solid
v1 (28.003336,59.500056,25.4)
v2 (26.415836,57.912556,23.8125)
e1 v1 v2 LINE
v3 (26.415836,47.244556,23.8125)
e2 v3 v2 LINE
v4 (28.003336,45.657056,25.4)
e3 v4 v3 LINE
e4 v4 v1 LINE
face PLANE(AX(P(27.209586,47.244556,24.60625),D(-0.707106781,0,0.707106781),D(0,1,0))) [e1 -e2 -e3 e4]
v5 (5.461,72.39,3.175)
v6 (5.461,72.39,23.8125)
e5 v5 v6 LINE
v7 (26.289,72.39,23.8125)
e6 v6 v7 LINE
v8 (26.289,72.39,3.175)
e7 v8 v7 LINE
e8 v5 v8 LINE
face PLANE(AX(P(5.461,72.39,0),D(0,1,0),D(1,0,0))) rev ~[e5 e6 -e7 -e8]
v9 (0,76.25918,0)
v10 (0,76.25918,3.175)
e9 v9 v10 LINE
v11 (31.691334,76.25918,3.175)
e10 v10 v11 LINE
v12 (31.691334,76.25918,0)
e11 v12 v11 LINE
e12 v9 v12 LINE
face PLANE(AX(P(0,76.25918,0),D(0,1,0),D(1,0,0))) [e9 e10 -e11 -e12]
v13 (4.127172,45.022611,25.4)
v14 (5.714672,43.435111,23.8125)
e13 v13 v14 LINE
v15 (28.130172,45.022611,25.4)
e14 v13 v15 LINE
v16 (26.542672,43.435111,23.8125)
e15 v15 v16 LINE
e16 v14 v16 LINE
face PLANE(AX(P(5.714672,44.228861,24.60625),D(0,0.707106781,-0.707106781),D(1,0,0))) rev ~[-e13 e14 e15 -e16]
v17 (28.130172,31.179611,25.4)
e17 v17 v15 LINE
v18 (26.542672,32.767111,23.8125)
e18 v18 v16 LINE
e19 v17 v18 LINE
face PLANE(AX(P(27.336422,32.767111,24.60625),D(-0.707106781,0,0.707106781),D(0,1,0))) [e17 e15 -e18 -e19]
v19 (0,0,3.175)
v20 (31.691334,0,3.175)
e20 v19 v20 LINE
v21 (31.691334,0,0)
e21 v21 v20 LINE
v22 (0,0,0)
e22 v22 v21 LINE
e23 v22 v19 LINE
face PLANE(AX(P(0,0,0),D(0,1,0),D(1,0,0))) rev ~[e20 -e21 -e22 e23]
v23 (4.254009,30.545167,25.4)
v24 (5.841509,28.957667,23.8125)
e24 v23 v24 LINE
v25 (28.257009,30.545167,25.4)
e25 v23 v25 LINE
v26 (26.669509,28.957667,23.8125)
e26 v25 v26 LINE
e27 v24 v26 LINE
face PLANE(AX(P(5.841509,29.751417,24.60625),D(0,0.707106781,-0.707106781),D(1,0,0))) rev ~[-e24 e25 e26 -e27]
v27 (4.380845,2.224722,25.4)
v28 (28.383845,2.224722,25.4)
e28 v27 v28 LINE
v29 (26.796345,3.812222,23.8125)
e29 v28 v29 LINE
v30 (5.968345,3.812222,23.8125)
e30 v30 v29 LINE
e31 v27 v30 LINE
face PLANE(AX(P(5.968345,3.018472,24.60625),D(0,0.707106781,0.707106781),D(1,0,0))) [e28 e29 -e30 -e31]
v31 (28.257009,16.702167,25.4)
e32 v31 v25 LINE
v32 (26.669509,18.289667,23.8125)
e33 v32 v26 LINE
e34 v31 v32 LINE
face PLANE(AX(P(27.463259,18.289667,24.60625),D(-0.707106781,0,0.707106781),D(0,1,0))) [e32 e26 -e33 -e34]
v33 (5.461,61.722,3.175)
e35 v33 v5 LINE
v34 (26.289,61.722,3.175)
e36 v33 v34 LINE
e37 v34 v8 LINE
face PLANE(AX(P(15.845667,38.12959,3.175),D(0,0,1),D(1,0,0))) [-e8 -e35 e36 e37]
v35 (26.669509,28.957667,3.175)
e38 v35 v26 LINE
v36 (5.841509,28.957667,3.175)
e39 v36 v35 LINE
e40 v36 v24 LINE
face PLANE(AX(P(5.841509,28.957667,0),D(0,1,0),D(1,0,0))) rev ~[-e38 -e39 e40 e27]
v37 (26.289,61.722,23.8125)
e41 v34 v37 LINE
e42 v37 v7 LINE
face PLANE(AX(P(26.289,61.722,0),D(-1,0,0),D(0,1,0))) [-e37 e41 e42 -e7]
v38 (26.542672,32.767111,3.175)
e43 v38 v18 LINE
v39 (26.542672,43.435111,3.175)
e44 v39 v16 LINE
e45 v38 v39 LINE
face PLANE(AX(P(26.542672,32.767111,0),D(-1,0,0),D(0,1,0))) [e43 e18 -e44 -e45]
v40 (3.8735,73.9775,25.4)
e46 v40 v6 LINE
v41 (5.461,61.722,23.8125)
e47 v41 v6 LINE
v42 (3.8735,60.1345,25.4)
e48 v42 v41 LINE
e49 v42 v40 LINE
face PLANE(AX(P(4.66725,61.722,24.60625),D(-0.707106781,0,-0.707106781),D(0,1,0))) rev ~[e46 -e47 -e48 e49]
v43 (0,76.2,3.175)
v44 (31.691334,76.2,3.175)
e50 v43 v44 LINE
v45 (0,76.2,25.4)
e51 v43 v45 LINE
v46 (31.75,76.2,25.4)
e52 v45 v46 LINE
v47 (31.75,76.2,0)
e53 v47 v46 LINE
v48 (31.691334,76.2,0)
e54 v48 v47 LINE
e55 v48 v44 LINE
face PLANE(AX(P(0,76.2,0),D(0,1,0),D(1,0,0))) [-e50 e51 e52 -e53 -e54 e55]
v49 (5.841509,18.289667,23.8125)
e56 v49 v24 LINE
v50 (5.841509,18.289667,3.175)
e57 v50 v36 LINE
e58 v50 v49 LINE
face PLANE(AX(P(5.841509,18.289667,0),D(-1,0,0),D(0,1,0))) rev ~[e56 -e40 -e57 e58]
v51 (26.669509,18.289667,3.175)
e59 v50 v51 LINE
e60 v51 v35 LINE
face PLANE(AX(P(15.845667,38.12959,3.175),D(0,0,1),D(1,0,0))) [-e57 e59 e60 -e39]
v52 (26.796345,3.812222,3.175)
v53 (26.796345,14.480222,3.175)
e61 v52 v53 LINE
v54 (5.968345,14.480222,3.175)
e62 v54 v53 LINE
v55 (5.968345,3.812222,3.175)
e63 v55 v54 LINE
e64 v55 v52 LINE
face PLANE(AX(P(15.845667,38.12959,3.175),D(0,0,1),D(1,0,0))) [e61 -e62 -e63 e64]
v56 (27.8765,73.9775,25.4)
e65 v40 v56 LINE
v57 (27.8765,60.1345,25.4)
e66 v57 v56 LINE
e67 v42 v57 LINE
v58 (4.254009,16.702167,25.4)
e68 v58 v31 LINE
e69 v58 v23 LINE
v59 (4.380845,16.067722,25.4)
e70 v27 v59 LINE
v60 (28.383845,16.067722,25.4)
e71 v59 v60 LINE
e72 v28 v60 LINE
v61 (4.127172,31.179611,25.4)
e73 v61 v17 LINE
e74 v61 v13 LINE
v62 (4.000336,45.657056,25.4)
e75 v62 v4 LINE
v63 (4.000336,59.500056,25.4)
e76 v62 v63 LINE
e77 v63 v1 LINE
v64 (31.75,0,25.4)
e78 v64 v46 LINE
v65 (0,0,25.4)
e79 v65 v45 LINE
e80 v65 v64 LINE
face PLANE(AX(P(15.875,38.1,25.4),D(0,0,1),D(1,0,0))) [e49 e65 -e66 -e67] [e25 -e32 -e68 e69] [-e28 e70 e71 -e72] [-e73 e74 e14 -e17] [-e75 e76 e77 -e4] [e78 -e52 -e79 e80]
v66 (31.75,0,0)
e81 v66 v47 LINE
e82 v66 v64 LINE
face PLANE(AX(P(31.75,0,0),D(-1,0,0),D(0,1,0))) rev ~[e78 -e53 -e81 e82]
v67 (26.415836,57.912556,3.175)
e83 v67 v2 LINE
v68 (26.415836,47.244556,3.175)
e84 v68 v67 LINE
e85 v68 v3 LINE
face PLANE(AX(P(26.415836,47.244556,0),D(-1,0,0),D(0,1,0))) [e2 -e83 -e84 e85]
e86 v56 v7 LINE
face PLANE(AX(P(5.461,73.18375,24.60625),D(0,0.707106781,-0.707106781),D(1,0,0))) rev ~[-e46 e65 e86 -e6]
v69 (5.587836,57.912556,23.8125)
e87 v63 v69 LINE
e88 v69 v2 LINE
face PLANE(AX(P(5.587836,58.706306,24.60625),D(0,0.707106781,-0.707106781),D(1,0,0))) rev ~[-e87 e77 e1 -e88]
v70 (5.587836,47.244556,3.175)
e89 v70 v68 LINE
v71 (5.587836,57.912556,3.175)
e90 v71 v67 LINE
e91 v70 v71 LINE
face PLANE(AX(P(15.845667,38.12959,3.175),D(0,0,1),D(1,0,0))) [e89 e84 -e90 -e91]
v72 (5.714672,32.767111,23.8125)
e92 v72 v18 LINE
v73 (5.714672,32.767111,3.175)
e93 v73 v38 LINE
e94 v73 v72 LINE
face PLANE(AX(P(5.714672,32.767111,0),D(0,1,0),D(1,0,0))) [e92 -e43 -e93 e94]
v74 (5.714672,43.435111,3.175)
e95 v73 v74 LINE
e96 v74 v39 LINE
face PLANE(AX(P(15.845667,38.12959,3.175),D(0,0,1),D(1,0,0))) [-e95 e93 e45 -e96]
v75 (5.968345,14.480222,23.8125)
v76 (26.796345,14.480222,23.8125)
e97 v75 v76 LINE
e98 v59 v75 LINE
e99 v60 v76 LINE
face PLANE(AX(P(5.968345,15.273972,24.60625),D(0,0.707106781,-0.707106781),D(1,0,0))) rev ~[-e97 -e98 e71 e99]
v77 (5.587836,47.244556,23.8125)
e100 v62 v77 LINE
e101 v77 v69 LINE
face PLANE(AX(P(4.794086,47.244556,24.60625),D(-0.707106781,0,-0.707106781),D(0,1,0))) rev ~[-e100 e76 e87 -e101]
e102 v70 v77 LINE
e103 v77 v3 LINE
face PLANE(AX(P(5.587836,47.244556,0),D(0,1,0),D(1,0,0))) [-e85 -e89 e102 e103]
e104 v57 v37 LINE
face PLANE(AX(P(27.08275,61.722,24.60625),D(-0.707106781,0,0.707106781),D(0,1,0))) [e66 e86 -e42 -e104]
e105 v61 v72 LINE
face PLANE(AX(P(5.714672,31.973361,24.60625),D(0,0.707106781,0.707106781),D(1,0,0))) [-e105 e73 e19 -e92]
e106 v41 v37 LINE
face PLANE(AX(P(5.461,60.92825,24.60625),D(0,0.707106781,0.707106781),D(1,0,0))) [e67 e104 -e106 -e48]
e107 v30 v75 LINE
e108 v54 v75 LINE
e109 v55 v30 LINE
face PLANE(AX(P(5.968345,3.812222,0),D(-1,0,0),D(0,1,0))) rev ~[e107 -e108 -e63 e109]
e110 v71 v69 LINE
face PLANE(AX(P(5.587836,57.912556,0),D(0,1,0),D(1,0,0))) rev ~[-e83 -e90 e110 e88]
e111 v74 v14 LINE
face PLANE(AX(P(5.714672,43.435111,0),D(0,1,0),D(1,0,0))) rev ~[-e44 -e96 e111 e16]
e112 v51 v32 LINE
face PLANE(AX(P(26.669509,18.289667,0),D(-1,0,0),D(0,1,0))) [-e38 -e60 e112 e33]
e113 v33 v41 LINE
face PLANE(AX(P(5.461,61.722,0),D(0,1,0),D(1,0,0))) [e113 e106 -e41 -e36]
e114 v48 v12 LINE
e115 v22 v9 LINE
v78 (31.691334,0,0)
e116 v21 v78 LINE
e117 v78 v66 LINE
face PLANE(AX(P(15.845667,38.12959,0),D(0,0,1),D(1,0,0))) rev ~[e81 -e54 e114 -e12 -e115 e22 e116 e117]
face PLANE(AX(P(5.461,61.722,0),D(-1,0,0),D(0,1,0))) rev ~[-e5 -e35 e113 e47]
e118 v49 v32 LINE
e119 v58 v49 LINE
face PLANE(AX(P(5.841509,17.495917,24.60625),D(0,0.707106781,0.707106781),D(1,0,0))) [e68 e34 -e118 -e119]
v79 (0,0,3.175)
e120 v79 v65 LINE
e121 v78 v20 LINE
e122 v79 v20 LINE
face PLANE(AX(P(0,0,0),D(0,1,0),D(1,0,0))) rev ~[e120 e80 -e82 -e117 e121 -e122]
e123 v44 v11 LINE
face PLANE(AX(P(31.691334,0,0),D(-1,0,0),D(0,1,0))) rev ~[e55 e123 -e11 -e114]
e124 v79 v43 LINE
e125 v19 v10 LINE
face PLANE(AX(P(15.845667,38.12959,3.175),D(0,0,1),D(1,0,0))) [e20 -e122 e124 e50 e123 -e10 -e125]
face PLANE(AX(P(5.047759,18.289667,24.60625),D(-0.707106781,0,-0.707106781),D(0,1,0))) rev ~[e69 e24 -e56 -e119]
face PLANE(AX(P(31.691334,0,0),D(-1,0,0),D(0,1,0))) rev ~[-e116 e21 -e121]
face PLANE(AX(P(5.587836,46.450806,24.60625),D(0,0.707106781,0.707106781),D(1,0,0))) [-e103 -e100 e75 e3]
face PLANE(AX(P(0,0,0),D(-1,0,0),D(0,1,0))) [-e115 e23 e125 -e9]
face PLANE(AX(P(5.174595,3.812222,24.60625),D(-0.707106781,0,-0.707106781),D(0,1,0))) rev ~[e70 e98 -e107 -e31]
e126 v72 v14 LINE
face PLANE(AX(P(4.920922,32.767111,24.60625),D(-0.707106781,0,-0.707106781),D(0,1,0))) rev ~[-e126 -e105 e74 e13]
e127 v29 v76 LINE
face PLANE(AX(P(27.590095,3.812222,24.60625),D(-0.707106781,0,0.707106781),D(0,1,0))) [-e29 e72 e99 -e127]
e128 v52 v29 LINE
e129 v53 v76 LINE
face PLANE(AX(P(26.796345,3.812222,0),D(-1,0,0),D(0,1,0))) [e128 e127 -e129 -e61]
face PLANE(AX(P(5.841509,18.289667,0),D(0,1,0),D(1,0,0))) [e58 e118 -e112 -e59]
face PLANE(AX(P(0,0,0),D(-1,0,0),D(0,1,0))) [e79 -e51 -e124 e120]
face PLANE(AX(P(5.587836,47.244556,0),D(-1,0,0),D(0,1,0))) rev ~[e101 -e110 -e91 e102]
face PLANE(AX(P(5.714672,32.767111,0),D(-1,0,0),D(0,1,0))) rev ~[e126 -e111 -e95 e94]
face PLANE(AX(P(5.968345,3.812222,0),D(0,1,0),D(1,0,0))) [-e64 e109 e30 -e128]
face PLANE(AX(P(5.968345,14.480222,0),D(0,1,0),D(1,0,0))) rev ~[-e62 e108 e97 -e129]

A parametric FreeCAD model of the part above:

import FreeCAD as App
import Part
import Sketcher

V = App.Vector
Q = App.Units.Quantity


def edges_at(feature, points):
    """Names of the edges that pass closest to the given points."""
    edges = feature.Shape.Edges
    near = lambda p: min(range(len(edges)), key=lambda i: edges[i].distToShape(Part.Vertex(*p))[0])
    return sorted({f"Edge{near(p) + 1}" for p in points})

doc = App.newDocument("Part")
params = doc.addObject("Spreadsheet::Sheet", "Params")
for row, (alias, value) in enumerate([
    ("sketch1_height", "3 in"),
    ("sketch1_width", "1.25 in"),
    ("sketch1_width2", "0.82 in"),
    ("sketch1_height2", "0.42 in"),
    ("pad1_length", "1 in"),
    ("pad2_length", "0.125 in"),
    ("chamfer_size", "0.0625 in"),
], start=1):
    params.set(f"A{row}", alias)
    params.set(f"B{row}", "=" + value)
    params.setAlias(f"B{row}", alias)

body = doc.addObject("PartDesign::Body", "Body")

# Sketch on XY plane
sketch1 = body.newObject("Sketcher::SketchObject", "Sketch")
sketch1.AttachmentSupport = (doc.getObject("XY_Plane"), [""])
sketch1.MapMode = "FlatFace"
sketch1.addGeometry(Part.LineSegment(V(0, 76, 0), V(0, 0, 0)), False)
sketch1.addGeometry(Part.LineSegment(V(0, 0, 0), V(32, 0, 0)), False)
sketch1.addGeometry(Part.LineSegment(V(32, 0, 0), V(32, 76, 0)), False)
sketch1.addGeometry(Part.LineSegment(V(32, 76, 0), V(0, 76, 0)), False)
sketch1.addGeometry(Part.LineSegment(V(27, 4, 0), V(6, 4, 0)), False)
sketch1.addGeometry(Part.LineSegment(V(6, 4, 0), V(6, 14, 0)), False)
sketch1.addGeometry(Part.LineSegment(V(6, 14, 0), V(27, 14, 0)), False)
sketch1.addGeometry(Part.LineSegment(V(27, 14, 0), V(27, 4, 0)), False)
sketch1.addGeometry(Part.LineSegment(V(27, 18, 0), V(6, 18, 0)), False)
sketch1.addGeometry(Part.LineSegment(V(6, 18, 0), V(6, 29, 0)), False)
sketch1.addGeometry(Part.LineSegment(V(6, 29, 0), V(27, 29, 0)), False)
sketch1.addGeometry(Part.LineSegment(V(27, 29, 0), V(27, 18, 0)), False)
sketch1.addGeometry(Part.LineSegment(V(27, 33, 0), V(6, 33, 0)), False)
sketch1.addGeometry(Part.LineSegment(V(6, 33, 0), V(6, 43, 0)), False)
sketch1.addGeometry(Part.LineSegment(V(6, 43, 0), V(27, 43, 0)), False)
sketch1.addGeometry(Part.LineSegment(V(27, 43, 0), V(27, 33, 0)), False)
sketch1.addGeometry(Part.LineSegment(V(26, 47, 0), V(6, 47, 0)), False)
sketch1.addGeometry(Part.LineSegment(V(6, 47, 0), V(6, 58, 0)), False)
sketch1.addGeometry(Part.LineSegment(V(6, 58, 0), V(26, 58, 0)), False)
sketch1.addGeometry(Part.LineSegment(V(26, 58, 0), V(26, 47, 0)), False)
sketch1.addGeometry(Part.LineSegment(V(26, 62, 0), V(5, 62, 0)), False)
sketch1.addGeometry(Part.LineSegment(V(5, 62, 0), V(5, 72, 0)), False)
sketch1.addGeometry(Part.LineSegment(V(5, 72, 0), V(26, 72, 0)), False)
sketch1.addGeometry(Part.LineSegment(V(26, 72, 0), V(26, 62, 0)), False)
sketch1.addConstraint(Sketcher.Constraint("Coincident", 0, 2, 1, 1))
sketch1.addConstraint(Sketcher.Constraint("Coincident", 1, 2, 2, 1))
sketch1.addConstraint(Sketcher.Constraint("Coincident", 2, 2, 3, 1))
sketch1.addConstraint(Sketcher.Constraint("Coincident", 3, 2, 0, 1))
sketch1.addConstraint(Sketcher.Constraint("Coincident", 4, 2, 5, 1))
sketch1.addConstraint(Sketcher.Constraint("Coincident", 5, 2, 6, 1))
sketch1.addConstraint(Sketcher.Constraint("Coincident", 6, 2, 7, 1))
sketch1.addConstraint(Sketcher.Constraint("Coincident", 7, 2, 4, 1))
sketch1.addConstraint(Sketcher.Constraint("Coincident", 8, 2, 9, 1))
sketch1.addConstraint(Sketcher.Constraint("Coincident", 9, 2, 10, 1))
sketch1.addConstraint(Sketcher.Constraint("Coincident", 10, 2, 11, 1))
sketch1.addConstraint(Sketcher.Constraint("Coincident", 11, 2, 8, 1))
sketch1.addConstraint(Sketcher.Constraint("Coincident", 12, 2, 13, 1))
sketch1.addConstraint(Sketcher.Constraint("Coincident", 13, 2, 14, 1))
sketch1.addConstraint(Sketcher.Constraint("Coincident", 14, 2, 15, 1))
sketch1.addConstraint(Sketcher.Constraint("Coincident", 15, 2, 12, 1))
sketch1.addConstraint(Sketcher.Constraint("Coincident", 16, 2, 17, 1))
sketch1.addConstraint(Sketcher.Constraint("Coincident", 17, 2, 18, 1))
sketch1.addConstraint(Sketcher.Constraint("Coincident", 18, 2, 19, 1))
sketch1.addConstraint(Sketcher.Constraint("Coincident", 19, 2, 16, 1))
sketch1.addConstraint(Sketcher.Constraint("Coincident", 20, 2, 21, 1))
sketch1.addConstraint(Sketcher.Constraint("Coincident", 21, 2, 22, 1))
sketch1.addConstraint(Sketcher.Constraint("Coincident", 22, 2, 23, 1))
sketch1.addConstraint(Sketcher.Constraint("Coincident", 23, 2, 20, 1))
sketch1.addConstraint(Sketcher.Constraint("Vertical", 0))
sketch1.addConstraint(Sketcher.Constraint("Horizontal", 1))
sketch1.addConstraint(Sketcher.Constraint("Vertical", 2))
sketch1.addConstraint(Sketcher.Constraint("Horizontal", 3))
sketch1.addConstraint(Sketcher.Constraint("Horizontal", 4))
sketch1.addConstraint(Sketcher.Constraint("Vertical", 5))
sketch1.addConstraint(Sketcher.Constraint("Horizontal", 6))
sketch1.addConstraint(Sketcher.Constraint("Vertical", 7))
sketch1.addConstraint(Sketcher.Constraint("Horizontal", 8))
sketch1.addConstraint(Sketcher.Constraint("Vertical", 9))
sketch1.addConstraint(Sketcher.Constraint("Horizontal", 10))
sketch1.addConstraint(Sketcher.Constraint("Vertical", 11))
sketch1.addConstraint(Sketcher.Constraint("Horizontal", 12))
sketch1.addConstraint(Sketcher.Constraint("Vertical", 13))
sketch1.addConstraint(Sketcher.Constraint("Horizontal", 14))
sketch1.addConstraint(Sketcher.Constraint("Vertical", 15))
sketch1.addConstraint(Sketcher.Constraint("Horizontal", 16))
sketch1.addConstraint(Sketcher.Constraint("Vertical", 17))
sketch1.addConstraint(Sketcher.Constraint("Horizontal", 18))
sketch1.addConstraint(Sketcher.Constraint("Vertical", 19))
sketch1.addConstraint(Sketcher.Constraint("Horizontal", 20))
sketch1.addConstraint(Sketcher.Constraint("Vertical", 21))
sketch1.addConstraint(Sketcher.Constraint("Horizontal", 22))
sketch1.addConstraint(Sketcher.Constraint("Vertical", 23))
sketch1.addConstraint(Sketcher.Constraint("Coincident", 0, 2, -1, 1))
sketch1.addConstraint(Sketcher.Constraint("Equal", 6, 8))
sketch1.addConstraint(Sketcher.Constraint("Equal", 10, 12))
sketch1.addConstraint(Sketcher.Constraint("Equal", 14, 16))
sketch1.addConstraint(Sketcher.Constraint("Equal", 18, 20))
sketch1.addConstraint(Sketcher.Constraint("Equal", 7, 9))
sketch1.addConstraint(Sketcher.Constraint("Equal", 11, 13))
sketch1.addConstraint(Sketcher.Constraint("Equal", 15, 17))
sketch1.addConstraint(Sketcher.Constraint("Equal", 19, 21))
sketch1.addConstraint(Sketcher.Constraint("DistanceY", 0, 2, 0, 1, Q("3 in")))
sketch1.addConstraint(Sketcher.Constraint("DistanceX", 1, 1, 1, 2, Q("1.25 in")))
sketch1.addConstraint(Sketcher.Constraint("DistanceX", 4, 2, 4, 1, Q("0.82 in")))
sketch1.addConstraint(Sketcher.Constraint("DistanceY", 5, 1, 5, 2, Q("0.42 in")))
sketch1.addConstraint(Sketcher.Constraint("DistanceY", -1, 1, 20, 2, Q("2.43 in")))
sketch1.addConstraint(Sketcher.Constraint("DistanceX", -1, 1, 20, 2, Q("0.215 in")))
sketch1.addConstraint(Sketcher.Constraint("DistanceX", -1, 1, 8, 2, Q("5.841509 mm")))
sketch1.addConstraint(Sketcher.Constraint("DistanceY", -1, 1, 12, 2, Q("32.767111 mm")))
sketch1.addConstraint(Sketcher.Constraint("DistanceX", -1, 1, 14, 2, Q("26.542672 mm")))
sketch1.addConstraint(Sketcher.Constraint("DistanceY", 5, 2, 3, 2, Q("61.719778 mm")))
sketch1.addConstraint(Sketcher.Constraint("DistanceY", 9, 2, 16, 2, Q("18.286889 mm")))
sketch1.addConstraint(Sketcher.Constraint("DistanceX", -1, 1, 4, 2, Q("5.968345 mm")))
sketch1.addConstraint(Sketcher.Constraint("DistanceY", -1, 1, 8, 2, Q("18.289667 mm")))
sketch1.addConstraint(Sketcher.Constraint("DistanceX", -1, 1, 16, 2, Q("5.587836 mm")))
sketch1.setExpression("Constraints[57]", "Params.sketch1_height")
sketch1.setExpression("Constraints[58]", "Params.sketch1_width")
sketch1.setExpression("Constraints[59]", "Params.sketch1_width2")
sketch1.setExpression("Constraints[60]", "Params.sketch1_height2")
pad1 = body.newObject("PartDesign::Pad", "Pad")
pad1.Profile = sketch1
pad1.setExpression("Length", "Params.pad1_length")

# Sketch on XY plane
sketch2 = body.newObject("Sketcher::SketchObject", "Sketch001")
sketch2.AttachmentSupport = (doc.getObject("XY_Plane"), [""])
sketch2.MapMode = "FlatFace"
sketch2.addGeometry(Part.LineSegment(V(0, 76, 0), V(0, 0, 0)), False)
sketch2.addGeometry(Part.LineSegment(V(0, 0, 0), V(32, 0, 0)), False)
sketch2.addGeometry(Part.LineSegment(V(32, 0, 0), V(32, 76, 0)), False)
sketch2.addGeometry(Part.LineSegment(V(32, 76, 0), V(0, 76, 0)), False)
sketch2.addConstraint(Sketcher.Constraint("Coincident", 0, 2, 1, 1))
sketch2.addConstraint(Sketcher.Constraint("Coincident", 1, 2, 2, 1))
sketch2.addConstraint(Sketcher.Constraint("Coincident", 2, 2, 3, 1))
sketch2.addConstraint(Sketcher.Constraint("Coincident", 3, 2, 0, 1))
sketch2.addConstraint(Sketcher.Constraint("Vertical", 0))
sketch2.addConstraint(Sketcher.Constraint("Horizontal", 1))
sketch2.addConstraint(Sketcher.Constraint("Vertical", 2))
sketch2.addConstraint(Sketcher.Constraint("Horizontal", 3))
sketch2.addConstraint(Sketcher.Constraint("Coincident", 0, 2, -1, 1))
sketch2.addConstraint(Sketcher.Constraint("DistanceY", 0, 2, 0, 1, Q("76.259181 mm")))
sketch2.addConstraint(Sketcher.Constraint("DistanceX", 1, 1, 1, 2, Q("31.691335 mm")))
pad2 = body.newObject("PartDesign::Pad", "Pad001")
pad2.Profile = sketch2
pad2.setExpression("Length", "Params.pad2_length")
doc.recompute()

chamfer = body.newObject("PartDesign::Chamfer", "Chamfer")
chamfer.Base = (pad2, edges_at(pad2, [
    (5.968, 9.146, 25.4),
    (16.382, 3.812, 25.4),
    (26.796, 9.146, 25.4),
    (16.382, 14.48, 25.4),
    (16.256, 18.29, 25.4),
    (5.842, 23.624, 25.4),
    (26.67, 23.624, 25.4),
    (16.256, 28.958, 25.4),
    (16.129, 32.767, 25.4),
    (5.715, 38.101, 25.4),
    (26.543, 38.101, 25.4),
    (16.129, 43.435, 25.4),
    (16.002, 57.913, 25.4),
    (5.588, 52.579, 25.4),
    (16.002, 47.245, 25.4),
    (26.416, 52.579, 25.4),
    (15.875, 61.722, 25.4),
    (5.461, 67.056, 25.4),
    (15.875, 72.39, 25.4),
    (26.289, 67.056, 25.4),
]))
chamfer.setExpression("Size", "Params.chamfer_size")

doc.recompute()
